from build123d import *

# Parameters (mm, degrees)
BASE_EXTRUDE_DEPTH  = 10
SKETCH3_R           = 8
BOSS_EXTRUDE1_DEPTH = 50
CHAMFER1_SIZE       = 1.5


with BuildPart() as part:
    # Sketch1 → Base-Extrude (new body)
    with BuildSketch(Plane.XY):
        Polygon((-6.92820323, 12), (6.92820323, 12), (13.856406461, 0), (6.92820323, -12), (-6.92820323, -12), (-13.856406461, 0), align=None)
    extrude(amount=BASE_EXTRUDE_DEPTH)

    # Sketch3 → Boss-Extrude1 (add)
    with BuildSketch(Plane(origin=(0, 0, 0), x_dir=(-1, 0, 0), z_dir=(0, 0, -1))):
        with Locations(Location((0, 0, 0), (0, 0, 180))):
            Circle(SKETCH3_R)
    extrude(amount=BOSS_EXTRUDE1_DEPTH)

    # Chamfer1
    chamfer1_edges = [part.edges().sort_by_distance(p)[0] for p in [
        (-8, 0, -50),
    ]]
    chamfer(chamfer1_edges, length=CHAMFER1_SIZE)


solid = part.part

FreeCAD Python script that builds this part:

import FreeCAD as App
import Part
import Sketcher
Q = App.Units.Quantity


def edges_at(feature, points):
    """Names of the edges that pass closest to the given points."""
    edges = feature.Shape.Edges
    near = lambda p: min(range(len(edges)), key=lambda i: edges[i].distToShape(Part.Vertex(*p))[0])
    return sorted({f"Edge{near(p) + 1}" for p in points})


def add_polygon(sketch, points):
    """Adds a closed chain of lines whose ends are joined by coincident constraints."""
    first, n = sketch.GeometryCount, len(points)
    for a, b in zip(points, points[1:] + points[:1]):
        sketch.addGeometry(Part.LineSegment(App.Vector(*a, 0), App.Vector(*b, 0)), False)
    for i in range(n):
        sketch.addConstraint(Sketcher.Constraint("Coincident", first + i, 2, first + (i + 1) % n, 1))

doc = App.newDocument("Part")
body = doc.addObject("PartDesign::Body", "Body")

# Sketch on XY plane
sketch1 = body.newObject("Sketcher::SketchObject", "Sketch")
sketch1.AttachmentSupport = (doc.getObject("XY_Plane"), [""])
sketch1.MapMode = "FlatFace"
add_polygon(sketch1, [(7, 12), (-7, 12), (-14, 0), (-7, -12), (7, -12), (14, 0)])  # lines 0-5
sketch1.addConstraint([
    Sketcher.Constraint("Horizontal", 0),
    Sketcher.Constraint("Horizontal", 3),
    Sketcher.Constraint("Symmetric", 0, 2, 3, 2, -1, 1),
    Sketcher.Constraint("Symmetric", 1, 2, 4, 2, -1, 1),
    Sketcher.Constraint("PointOnObject", 1, 2, -1),
    Sketcher.Constraint("Parallel", 2, 5),
    Sketcher.Constraint("Vertical", 0, 2, 2, 2),
    Sketcher.Constraint("Angle", 1, Q("-120 deg")),
    Sketcher.Constraint("DistanceY", -1, 1, 0, 2, 12.0),
    Sketcher.Constraint("DistanceX", 0, 2, 0, 1, 13.856406),
])
pad1 = body.newObject("PartDesign::Pad", "Pad")
pad1.Profile = sketch1
pad1.Length = 10

# Sketch on XY plane
sketch2 = body.newObject("Sketcher::SketchObject", "Sketch001")
sketch2.AttachmentSupport = (doc.getObject("XY_Plane"), [""])
sketch2.MapMode = "FlatFace"
sketch2.addGeometry(Part.Circle(App.Vector(0, 0, 0), App.Vector(0, 0, 1), 8), False)
sketch2.addConstraint([
    Sketcher.Constraint("Coincident", 0, 3, -1, 1),
    Sketcher.Constraint("Diameter", 0, 16.0),
])
pad2 = body.newObject("PartDesign::Pad", "Pad001")
pad2.Profile = sketch2
pad2.Length = 50
pad2.Reversed = True
doc.recompute()

chamfer = body.newObject("PartDesign::Chamfer", "Chamfer")
chamfer.Base = (pad2, edges_at(pad2, [(-8, 0, -50)]))
chamfer.Size = 1.5

doc.recompute()
